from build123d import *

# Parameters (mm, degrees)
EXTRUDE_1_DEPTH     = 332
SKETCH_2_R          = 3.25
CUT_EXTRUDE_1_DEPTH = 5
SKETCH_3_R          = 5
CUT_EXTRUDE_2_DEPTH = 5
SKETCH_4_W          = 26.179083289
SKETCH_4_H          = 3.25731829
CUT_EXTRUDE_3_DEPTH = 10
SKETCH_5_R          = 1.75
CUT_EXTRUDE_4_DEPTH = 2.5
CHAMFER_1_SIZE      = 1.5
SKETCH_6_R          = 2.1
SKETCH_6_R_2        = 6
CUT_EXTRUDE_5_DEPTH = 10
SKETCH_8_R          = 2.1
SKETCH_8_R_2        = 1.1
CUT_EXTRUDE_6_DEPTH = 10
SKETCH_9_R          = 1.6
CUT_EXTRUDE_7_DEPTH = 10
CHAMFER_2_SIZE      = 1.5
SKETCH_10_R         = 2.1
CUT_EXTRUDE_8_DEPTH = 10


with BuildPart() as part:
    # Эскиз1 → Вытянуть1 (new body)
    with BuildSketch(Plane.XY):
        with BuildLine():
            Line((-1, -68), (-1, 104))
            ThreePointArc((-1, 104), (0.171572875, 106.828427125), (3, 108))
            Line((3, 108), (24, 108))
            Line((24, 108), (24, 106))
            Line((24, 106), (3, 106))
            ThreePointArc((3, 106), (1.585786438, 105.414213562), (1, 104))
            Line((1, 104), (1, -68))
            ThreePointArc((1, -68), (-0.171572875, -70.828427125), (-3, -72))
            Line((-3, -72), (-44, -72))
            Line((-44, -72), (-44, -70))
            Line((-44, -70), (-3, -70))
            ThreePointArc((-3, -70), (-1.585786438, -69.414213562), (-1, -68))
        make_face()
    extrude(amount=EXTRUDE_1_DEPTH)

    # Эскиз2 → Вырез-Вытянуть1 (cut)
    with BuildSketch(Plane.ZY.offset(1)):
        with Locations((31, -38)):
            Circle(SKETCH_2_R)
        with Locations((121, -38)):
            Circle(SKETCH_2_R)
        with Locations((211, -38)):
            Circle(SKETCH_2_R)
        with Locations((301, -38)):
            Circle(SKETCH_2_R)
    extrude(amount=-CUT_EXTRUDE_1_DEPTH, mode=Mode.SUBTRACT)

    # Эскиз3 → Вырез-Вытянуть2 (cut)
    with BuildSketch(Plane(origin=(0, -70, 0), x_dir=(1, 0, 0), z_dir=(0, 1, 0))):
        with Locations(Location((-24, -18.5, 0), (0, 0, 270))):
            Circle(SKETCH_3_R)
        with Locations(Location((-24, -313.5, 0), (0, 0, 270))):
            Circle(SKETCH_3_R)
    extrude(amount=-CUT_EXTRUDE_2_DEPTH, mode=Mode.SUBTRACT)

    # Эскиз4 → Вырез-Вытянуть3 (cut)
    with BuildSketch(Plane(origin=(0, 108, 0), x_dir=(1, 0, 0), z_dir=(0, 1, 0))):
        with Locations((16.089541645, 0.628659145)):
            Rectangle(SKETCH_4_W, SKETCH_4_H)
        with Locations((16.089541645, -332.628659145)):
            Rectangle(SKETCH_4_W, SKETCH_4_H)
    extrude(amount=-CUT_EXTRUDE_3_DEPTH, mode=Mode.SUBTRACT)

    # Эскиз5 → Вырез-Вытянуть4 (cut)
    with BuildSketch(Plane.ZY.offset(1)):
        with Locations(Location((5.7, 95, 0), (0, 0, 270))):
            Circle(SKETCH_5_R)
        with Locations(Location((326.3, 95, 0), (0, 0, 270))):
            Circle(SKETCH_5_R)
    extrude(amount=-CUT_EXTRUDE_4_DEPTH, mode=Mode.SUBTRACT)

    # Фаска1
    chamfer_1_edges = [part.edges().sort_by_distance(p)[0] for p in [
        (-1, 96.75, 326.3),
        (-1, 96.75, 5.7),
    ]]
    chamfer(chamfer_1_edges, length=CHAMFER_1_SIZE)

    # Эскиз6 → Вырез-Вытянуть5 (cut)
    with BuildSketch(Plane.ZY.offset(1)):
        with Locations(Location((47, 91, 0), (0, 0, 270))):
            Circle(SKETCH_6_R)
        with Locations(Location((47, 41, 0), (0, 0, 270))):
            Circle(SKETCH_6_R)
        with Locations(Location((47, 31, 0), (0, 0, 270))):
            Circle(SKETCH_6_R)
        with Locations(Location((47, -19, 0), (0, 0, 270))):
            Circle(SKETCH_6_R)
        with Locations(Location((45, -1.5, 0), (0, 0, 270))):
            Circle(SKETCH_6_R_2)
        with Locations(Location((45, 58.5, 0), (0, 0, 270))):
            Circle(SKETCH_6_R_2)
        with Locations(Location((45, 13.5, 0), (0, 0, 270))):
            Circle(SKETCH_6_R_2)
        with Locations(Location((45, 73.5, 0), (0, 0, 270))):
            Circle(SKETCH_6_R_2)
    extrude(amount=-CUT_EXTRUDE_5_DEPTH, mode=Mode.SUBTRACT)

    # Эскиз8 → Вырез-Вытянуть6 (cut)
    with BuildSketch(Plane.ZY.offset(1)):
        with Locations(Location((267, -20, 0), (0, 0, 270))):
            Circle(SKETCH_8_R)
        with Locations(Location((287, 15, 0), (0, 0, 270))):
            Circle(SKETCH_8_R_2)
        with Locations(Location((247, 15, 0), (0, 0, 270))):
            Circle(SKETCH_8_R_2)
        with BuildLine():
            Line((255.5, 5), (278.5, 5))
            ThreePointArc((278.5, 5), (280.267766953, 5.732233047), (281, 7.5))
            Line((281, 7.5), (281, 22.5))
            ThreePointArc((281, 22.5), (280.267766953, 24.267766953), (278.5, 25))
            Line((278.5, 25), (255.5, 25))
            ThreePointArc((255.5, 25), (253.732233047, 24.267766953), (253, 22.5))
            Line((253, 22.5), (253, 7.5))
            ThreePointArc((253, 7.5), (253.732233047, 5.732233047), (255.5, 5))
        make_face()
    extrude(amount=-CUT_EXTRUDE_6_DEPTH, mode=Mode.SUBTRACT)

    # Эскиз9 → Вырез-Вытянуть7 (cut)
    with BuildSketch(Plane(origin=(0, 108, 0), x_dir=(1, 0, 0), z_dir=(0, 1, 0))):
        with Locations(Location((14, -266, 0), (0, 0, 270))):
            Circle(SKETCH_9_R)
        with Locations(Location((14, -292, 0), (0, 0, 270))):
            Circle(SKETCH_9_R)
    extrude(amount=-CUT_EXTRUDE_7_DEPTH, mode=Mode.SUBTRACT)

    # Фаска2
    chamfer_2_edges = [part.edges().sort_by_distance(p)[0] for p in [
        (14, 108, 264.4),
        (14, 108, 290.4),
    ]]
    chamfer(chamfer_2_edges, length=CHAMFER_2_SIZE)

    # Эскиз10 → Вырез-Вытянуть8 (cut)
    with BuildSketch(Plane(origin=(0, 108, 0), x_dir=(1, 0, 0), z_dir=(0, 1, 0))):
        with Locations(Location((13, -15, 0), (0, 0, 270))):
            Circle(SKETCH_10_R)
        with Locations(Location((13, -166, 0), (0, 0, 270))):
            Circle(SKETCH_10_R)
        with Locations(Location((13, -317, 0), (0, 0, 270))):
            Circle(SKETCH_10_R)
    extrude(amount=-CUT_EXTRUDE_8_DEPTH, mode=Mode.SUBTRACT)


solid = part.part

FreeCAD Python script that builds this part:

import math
import FreeCAD as App
import Part
import Sketcher
from FreeCAD import Vector
Q = App.Units.Quantity


def edges_at(feature, points):
    """Names of the edges that pass closest to the given points."""
    edges = feature.Shape.Edges
    near = lambda p: min(range(len(edges)), key=lambda i: edges[i].distToShape(Part.Vertex(*p))[0])
    return sorted({f"Edge{near(p) + 1}" for p in points})

doc = App.newDocument("Part")
body = doc.addObject("PartDesign::Body", "Body")

# Sketch on XY plane
sketch1 = body.newObject("Sketcher::SketchObject", "Sketch")
sketch1.AttachmentSupport = (doc.getObject("XY_Plane"), [""])
sketch1.MapMode = "FlatFace"
sketch1.addGeometry([
    Part.LineSegment(Vector(-1, 104, 0), Vector(-1, -68, 0)),  # 0
    Part.ArcOfCircle(Part.Circle(Vector(-3, -68, 0), Vector(0, 0, 1), 2), math.radians(-90), math.radians(0)),  # 1
    Part.LineSegment(Vector(-3, -70, 0), Vector(-44, -70, 0)),  # 2
    Part.LineSegment(Vector(-44, -70, 0), Vector(-44, -72, 0)),  # 3
    Part.LineSegment(Vector(-44, -72, 0), Vector(-3, -72, 0)),  # 4
    Part.ArcOfCircle(Part.Circle(Vector(-3, -68, 0), Vector(0, 0, 1), 4), math.radians(-90), math.radians(0)),  # 5
    Part.LineSegment(Vector(1, -68, 0), Vector(1, 104, 0)),  # 6
    Part.ArcOfCircle(Part.Circle(Vector(3, 104, 0), Vector(0, 0, 1), 2), math.radians(90), math.radians(180)),  # 7
    Part.LineSegment(Vector(3, 106, 0), Vector(24, 106, 0)),  # 8
    Part.LineSegment(Vector(24, 106, 0), Vector(24, 108, 0)),  # 9
    Part.LineSegment(Vector(24, 108, 0), Vector(3, 108, 0)),  # 10
    Part.ArcOfCircle(Part.Circle(Vector(3, 104, 0), Vector(0, 0, 1), 4), math.radians(90), math.radians(180)),  # 11
], False)
sketch1.addConstraint([
    Sketcher.Constraint("Tangent", 0, 2, 1, 2),
    Sketcher.Constraint("Tangent", 1, 1, 2, 1),
    Sketcher.Constraint("Coincident", 2, 2, 3, 1),
    Sketcher.Constraint("Coincident", 3, 2, 4, 1),
    Sketcher.Constraint("Tangent", 4, 2, 5, 1),
    Sketcher.Constraint("Tangent", 5, 2, 6, 1),
    Sketcher.Constraint("Tangent", 6, 2, 7, 2),
    Sketcher.Constraint("Tangent", 7, 1, 8, 1),
    Sketcher.Constraint("Coincident", 8, 2, 9, 1),
    Sketcher.Constraint("Coincident", 9, 2, 10, 1),
    Sketcher.Constraint("Tangent", 10, 2, 11, 1),
    Sketcher.Constraint("Tangent", 11, 2, 0, 1),
    Sketcher.Constraint("Vertical", 0),
    Sketcher.Constraint("Horizontal", 2),
    Sketcher.Constraint("Vertical", 3),
    Sketcher.Constraint("Horizontal", 4),
    Sketcher.Constraint("Vertical", 6),
    Sketcher.Constraint("Horizontal", 8),
    Sketcher.Constraint("Vertical", 9),
    Sketcher.Constraint("Horizontal", 10),
    Sketcher.Constraint("Coincident", 5, 3, 1, 3),
    Sketcher.Constraint("Coincident", 11, 3, 7, 3),
    Sketcher.Constraint("Equal", 1, 7),
    Sketcher.Constraint("Radius", 1, Q("2 mm")),
    Sketcher.Constraint("Radius", 5, Q("4 mm")),
    Sketcher.Constraint("DistanceX", 2, 2, 2, 1, Q("41 mm")),
    Sketcher.Constraint("DistanceX", 8, 1, 8, 2, Q("21 mm")),
    Sketcher.Constraint("DistanceY", 0, 2, 0, 1, Q("172 mm")),
    Sketcher.Constraint("DistanceX", 1, 3, -1, 1, Q("3 mm")),
    Sketcher.Constraint("DistanceY", 1, 3, -1, 1, Q("68 mm")),
])
pad1 = body.newObject("PartDesign::Pad", "Pad")
pad1.Profile = sketch1
pad1.Length = 332

# Sketch on YZ plane
sketch2 = body.newObject("Sketcher::SketchObject", "Sketch001")
sketch2.AttachmentSupport = (doc.getObject("YZ_Plane"), [""])
sketch2.MapMode = "FlatFace"
sketch2.AttachmentOffset = App.Placement(Vector(0, 0, -1), App.Rotation())
sketch2.addGeometry([
    Part.Circle(Vector(-38, 31, 0), Vector(0, 0, 1), 3.2),
    Part.Circle(Vector(-38, 121, 0), Vector(0, 0, 1), 3.2),
    Part.Circle(Vector(-38, 211, 0), Vector(0, 0, 1), 3.2),
    Part.Circle(Vector(-38, 301, 0), Vector(0, 0, 1), 3.2),
], False)
sketch2.addConstraint([
    Sketcher.Constraint("Equal", 0, 1),
    Sketcher.Constraint("Equal", 1, 2),
    Sketcher.Constraint("Equal", 2, 3),
    Sketcher.Constraint("Vertical", 0, 3, 1, 3),
    Sketcher.Constraint("Vertical", 1, 3, 2, 3),
    Sketcher.Constraint("Vertical", 2, 3, 3, 3),
    Sketcher.Constraint("Diameter", 0, Q("6.5 mm")),
    Sketcher.Constraint("DistanceX", 0, 3, -1, 1, Q("38 mm")),
    Sketcher.Constraint("DistanceY", -1, 1, 0, 3, Q("31 mm")),
    Sketcher.Constraint("DistanceY", -1, 1, 1, 3, Q("121 mm")),
    Sketcher.Constraint("DistanceY", -1, 1, 2, 3, Q("211 mm")),
    Sketcher.Constraint("DistanceY", -1, 1, 3, 3, Q("301 mm")),
])
pocket1 = body.newObject("PartDesign::Pocket", "Pocket")
pocket1.Profile = sketch2
pocket1.Length = 5
pocket1.Reversed = True

# Sketch on XZ plane
sketch3 = body.newObject("Sketcher::SketchObject", "Sketch002")
sketch3.AttachmentSupport = (doc.getObject("XZ_Plane"), [""])
sketch3.MapMode = "FlatFace"
sketch3.AttachmentOffset = App.Placement(Vector(0, 0, 70), App.Rotation())
sketch3.addGeometry([
    Part.Circle(Vector(-24, 18, 0), Vector(0, 0, 1), 5),
    Part.Circle(Vector(-24, 314, 0), Vector(0, 0, 1), 5),
], False)
sketch3.addConstraint([
    Sketcher.Constraint("Equal", 0, 1),
    Sketcher.Constraint("Vertical", 0, 3, 1, 3),
    Sketcher.Constraint("Diameter", 0, Q("10 mm")),
    Sketcher.Constraint("DistanceX", 0, 3, -1, 1, Q("24 mm")),
    Sketcher.Constraint("DistanceY", 0, 3, 1, 3, Q("295 mm")),
    Sketcher.Constraint("DistanceY", -1, 1, 0, 3, Q("18.5 mm")),
])
pocket2 = body.newObject("PartDesign::Pocket", "Pocket001")
pocket2.Profile = sketch3
pocket2.Length = 5
pocket2.Reversed = True

# Sketch on XZ plane
sketch4 = body.newObject("Sketcher::SketchObject", "Sketch003")
sketch4.AttachmentSupport = (doc.getObject("XZ_Plane"), [""])
sketch4.MapMode = "FlatFace"
sketch4.AttachmentOffset = App.Placement(Vector(0, 0, -108), App.Rotation())
sketch4.addGeometry([
    Part.LineSegment(Vector(3, -2.3, 0), Vector(3, 1, 0)),  # 0
    Part.LineSegment(Vector(3, 1, 0), Vector(29.2, 1, 0)),  # 1
    Part.LineSegment(Vector(29.2, 1, 0), Vector(29.2, -2.3, 0)),  # 2
    Part.LineSegment(Vector(29.2, -2.3, 0), Vector(3, -2.3, 0)),  # 3
    Part.LineSegment(Vector(3, 331, 0), Vector(3, 334.3, 0)),  # 4
    Part.LineSegment(Vector(3, 334.3, 0), Vector(29.2, 334.3, 0)),  # 5
    Part.LineSegment(Vector(29.2, 334.3, 0), Vector(29.2, 331, 0)),  # 6
    Part.LineSegment(Vector(29.2, 331, 0), Vector(3, 331, 0)),  # 7
], False)
sketch4.addConstraint([
    Sketcher.Constraint("Coincident", 0, 2, 1, 1),
    Sketcher.Constraint("Coincident", 1, 2, 2, 1),
    Sketcher.Constraint("Coincident", 2, 2, 3, 1),
    Sketcher.Constraint("Coincident", 3, 2, 0, 1),
    Sketcher.Constraint("Coincident", 4, 2, 5, 1),
    Sketcher.Constraint("Coincident", 5, 2, 6, 1),
    Sketcher.Constraint("Coincident", 6, 2, 7, 1),
    Sketcher.Constraint("Coincident", 7, 2, 4, 1),
    Sketcher.Constraint("Vertical", 0),
    Sketcher.Constraint("Horizontal", 1),
    Sketcher.Constraint("Vertical", 2),
    Sketcher.Constraint("Horizontal", 3),
    Sketcher.Constraint("Vertical", 4),
    Sketcher.Constraint("Horizontal", 5),
    Sketcher.Constraint("Vertical", 6),
    Sketcher.Constraint("Horizontal", 7),
    Sketcher.Constraint("Vertical", 3, 2, 4, 2),
    Sketcher.Constraint("Vertical", 2, 2, 5, 2),
    Sketcher.Constraint("Equal", 2, 4),
    Sketcher.Constraint("DistanceX", -1, 1, 0, 2, Q("3 mm")),
    Sketcher.Constraint("DistanceY", -1, 1, 0, 2, Q("1 mm")),
    Sketcher.Constraint("DistanceY", -1, 1, 6, 2, Q("331 mm")),
    Sketcher.Constraint("DistanceY", 0, 1, 0, 2, Q("3.257318 mm")),
    Sketcher.Constraint("DistanceX", 1, 1, 1, 2, Q("26.179083 mm")),
])
pocket3 = body.newObject("PartDesign::Pocket", "Pocket002")
pocket3.Profile = sketch4
pocket3.Length = 10
pocket3.Reversed = True

# Sketch on YZ plane
sketch5 = body.newObject("Sketcher::SketchObject", "Sketch004")
sketch5.AttachmentSupport = (doc.getObject("YZ_Plane"), [""])
sketch5.MapMode = "FlatFace"
sketch5.AttachmentOffset = App.Placement(Vector(0, 0, -1), App.Rotation())
sketch5.addGeometry([
    Part.Circle(Vector(95, 5.7, 0), Vector(0, 0, 1), 1.8),
    Part.Circle(Vector(95, 326.3, 0), Vector(0, 0, 1), 1.8),
], False)
sketch5.addConstraint([
    Sketcher.Constraint("Equal", 0, 1),
    Sketcher.Constraint("Vertical", 0, 3, 1, 3),
    Sketcher.Constraint("Diameter", 0, Q("3.5 mm")),
    Sketcher.Constraint("DistanceX", -1, 1, 0, 3, Q("95 mm")),
    Sketcher.Constraint("DistanceY", -1, 1, 0, 3, Q("5.7 mm")),
    Sketcher.Constraint("DistanceY", -1, 1, 1, 3, Q("326.3 mm")),
])
pocket4 = body.newObject("PartDesign::Pocket", "Pocket003")
pocket4.Profile = sketch5
pocket4.Length = 2.5
pocket4.Reversed = True
doc.recompute()

chamfer = body.newObject("PartDesign::Chamfer", "Chamfer")
chamfer.Base = (pocket4, edges_at(pocket4, [(-1, 96.75, 326.3), (-1, 96.75, 5.7)]))
chamfer.Size = 1.5

# Sketch on YZ plane
sketch6 = body.newObject("Sketcher::SketchObject", "Sketch005")
sketch6.AttachmentSupport = (doc.getObject("YZ_Plane"), [""])
sketch6.MapMode = "FlatFace"
sketch6.AttachmentOffset = App.Placement(Vector(0, 0, -1), App.Rotation())
sketch6.addGeometry([
    Part.Circle(Vector(91, 47, 0), Vector(0, 0, 1), 2.1),  # 0
    Part.Circle(Vector(41, 47, 0), Vector(0, 0, 1), 2.1),  # 1
    Part.Circle(Vector(31, 47, 0), Vector(0, 0, 1), 2.1),  # 2
    Part.Circle(Vector(-19, 47, 0), Vector(0, 0, 1), 2.1),  # 3
    Part.Circle(Vector(-1.5, 45, 0), Vector(0, 0, 1), 6),  # 4
    Part.Circle(Vector(58.5, 45, 0), Vector(0, 0, 1), 6),  # 5
    Part.Circle(Vector(13.5, 45, 0), Vector(0, 0, 1), 6),  # 6
    Part.Circle(Vector(73.5, 45, 0), Vector(0, 0, 1), 6),  # 7
], False)
sketch6.addConstraint([
    Sketcher.Constraint("Equal", 0, 1),
    Sketcher.Constraint("Equal", 1, 2),
    Sketcher.Constraint("Equal", 2, 3),
    Sketcher.Constraint("Equal", 4, 5),
    Sketcher.Constraint("Equal", 5, 6),
    Sketcher.Constraint("Equal", 6, 7),
    Sketcher.Constraint("Horizontal", 0, 3, 1, 3),
    Sketcher.Constraint("Horizontal", 1, 3, 2, 3),
    Sketcher.Constraint("Horizontal", 2, 3, 3, 3),
    Sketcher.Constraint("Horizontal", 4, 3, 5, 3),
    Sketcher.Constraint("Horizontal", 5, 3, 6, 3),
    Sketcher.Constraint("Horizontal", 6, 3, 7, 3),
    Sketcher.Constraint("Diameter", 4, Q("12 mm")),
    Sketcher.Constraint("Diameter", 0, Q("4.2 mm")),
    Sketcher.Constraint("DistanceX", -1, 1, 0, 3, Q("91 mm")),
    Sketcher.Constraint("DistanceY", -1, 1, 0, 3, Q("47 mm")),
    Sketcher.Constraint("DistanceX", -1, 1, 1, 3, Q("41 mm")),
    Sketcher.Constraint("DistanceX", -1, 1, 2, 3, Q("31 mm")),
    Sketcher.Constraint("DistanceX", 3, 3, -1, 1, Q("19 mm")),
    Sketcher.Constraint("DistanceY", -1, 1, 4, 3, Q("45 mm")),
    Sketcher.Constraint("DistanceX", 4, 3, 5, 3, Q("60 mm")),
    Sketcher.Constraint("DistanceX", 4, 3, 6, 3, Q("15 mm")),
    Sketcher.Constraint("DistanceX", 5, 3, 7, 3, Q("15 mm")),
    Sketcher.Constraint("DistanceX", 4, 3, -1, 1, Q("1.5 mm")),
])
pocket5 = body.newObject("PartDesign::Pocket", "Pocket004")
pocket5.Profile = sketch6
pocket5.Length = 10
pocket5.Reversed = True

# Sketch on YZ plane
sketch7 = body.newObject("Sketcher::SketchObject", "Sketch006")
sketch7.AttachmentSupport = (doc.getObject("YZ_Plane"), [""])
sketch7.MapMode = "FlatFace"
sketch7.AttachmentOffset = App.Placement(Vector(0, 0, -1), App.Rotation())
sketch7.addGeometry([
    Part.Circle(Vector(-20, 267, 0), Vector(0, 0, 1), 2.1),  # 0
    Part.Circle(Vector(15, 287, 0), Vector(0, 0, 1), 1.1),  # 1
    Part.Circle(Vector(15, 247, 0), Vector(0, 0, 1), 1.1),  # 2
    Part.LineSegment(Vector(5, 255.5, 0), Vector(5, 278.5, 0)),  # 3
    Part.ArcOfCircle(Part.Circle(Vector(7.5, 278.5, 0), Vector(0, 0, 1), 2.5), math.radians(90), math.radians(180)),  # 4
    Part.LineSegment(Vector(7.5, 281, 0), Vector(22.5, 281, 0)),  # 5
    Part.ArcOfCircle(Part.Circle(Vector(22.5, 278.5, 0), Vector(0, 0, 1), 2.5), math.radians(0), math.radians(90)),  # 6
    Part.LineSegment(Vector(25, 278.5, 0), Vector(25, 255.5, 0)),  # 7
    Part.ArcOfCircle(Part.Circle(Vector(22.5, 255.5, 0), Vector(0, 0, 1), 2.5), math.radians(-90), math.radians(0)),  # 8
    Part.LineSegment(Vector(22.5, 253, 0), Vector(7.5, 253, 0)),  # 9
    Part.ArcOfCircle(Part.Circle(Vector(7.5, 255.5, 0), Vector(0, 0, 1), 2.5), math.radians(180), math.radians(270)),  # 10
], False)
sketch7.addConstraint([
    Sketcher.Constraint("Tangent", 3, 2, 4, 2),
    Sketcher.Constraint("Tangent", 4, 1, 5, 1),
    Sketcher.Constraint("Tangent", 5, 2, 6, 2),
    Sketcher.Constraint("Tangent", 6, 1, 7, 1),
    Sketcher.Constraint("Tangent", 7, 2, 8, 2),
    Sketcher.Constraint("Tangent", 8, 1, 9, 1),
    Sketcher.Constraint("Tangent", 9, 2, 10, 2),
    Sketcher.Constraint("Tangent", 10, 1, 3, 1),
    Sketcher.Constraint("Vertical", 3),
    Sketcher.Constraint("Horizontal", 5),
    Sketcher.Constraint("Vertical", 7),
    Sketcher.Constraint("Horizontal", 9),
    Sketcher.Constraint("Equal", 1, 2),
    Sketcher.Constraint("Equal", 4, 6),
    Sketcher.Constraint("Equal", 6, 8),
    Sketcher.Constraint("Equal", 8, 10),
    Sketcher.Constraint("Vertical", 1, 3, 2, 3),
    Sketcher.Constraint("Diameter", 0, Q("4.2 mm")),
    Sketcher.Constraint("Diameter", 1, Q("2.2 mm")),
    Sketcher.Constraint("Radius", 4, Q("2.5 mm")),
    Sketcher.Constraint("DistanceX", 5, 1, 5, 2, Q("15 mm")),
    Sketcher.Constraint("DistanceY", 3, 1, 3, 2, Q("23 mm")),
    Sketcher.Constraint("DistanceX", 0, 3, -1, 1, Q("20 mm")),
    Sketcher.Constraint("DistanceY", -1, 1, 0, 3, Q("267 mm")),
    Sketcher.Constraint("DistanceX", -1, 1, 1, 3, Q("15 mm")),
    Sketcher.Constraint("DistanceY", -1, 1, 1, 3, Q("287 mm")),
    Sketcher.Constraint("DistanceY", -1, 1, 2, 3, Q("247 mm")),
    Sketcher.Constraint("DistanceX", -1, 1, 3, 2, Q("5 mm")),
    Sketcher.Constraint("DistanceY", -1, 1, 4, 1, Q("281 mm")),
])
pocket6 = body.newObject("PartDesign::Pocket", "Pocket005")
pocket6.Profile = sketch7
pocket6.Length = 10
pocket6.Reversed = True

# Sketch on XZ plane
sketch8 = body.newObject("Sketcher::SketchObject", "Sketch007")
sketch8.AttachmentSupport = (doc.getObject("XZ_Plane"), [""])
sketch8.MapMode = "FlatFace"
sketch8.AttachmentOffset = App.Placement(Vector(0, 0, -108), App.Rotation())
sketch8.addGeometry([
    Part.Circle(Vector(14, 266, 0), Vector(0, 0, 1), 1.6),
    Part.Circle(Vector(14, 292, 0), Vector(0, 0, 1), 1.6),
], False)
sketch8.addConstraint([
    Sketcher.Constraint("Equal", 0, 1),
    Sketcher.Constraint("Vertical", 0, 3, 1, 3),
    Sketcher.Constraint("Diameter", 0, Q("3.2 mm")),
    Sketcher.Constraint("DistanceX", -1, 1, 0, 3, Q("14 mm")),
    Sketcher.Constraint("DistanceY", -1, 1, 0, 3, Q("266 mm")),
    Sketcher.Constraint("DistanceY", -1, 1, 1, 3, Q("292 mm")),
])
pocket7 = body.newObject("PartDesign::Pocket", "Pocket006")
pocket7.Profile = sketch8
pocket7.Length = 10
pocket7.Reversed = True
doc.recompute()

chamfer2 = body.newObject("PartDesign::Chamfer", "Chamfer001")
chamfer2.Base = (pocket7, edges_at(pocket7, [(14, 108, 264.4), (14, 108, 290.4)]))
chamfer2.Size = 1.5

# Sketch on XZ plane
sketch9 = body.newObject("Sketcher::SketchObject", "Sketch008")
sketch9.AttachmentSupport = (doc.getObject("XZ_Plane"), [""])
sketch9.MapMode = "FlatFace"
sketch9.AttachmentOffset = App.Placement(Vector(0, 0, -108), App.Rotation())
sketch9.addGeometry([
    Part.Circle(Vector(13, 15, 0), Vector(0, 0, 1), 2.1),
    Part.Circle(Vector(13, 166, 0), Vector(0, 0, 1), 2.1),
    Part.Circle(Vector(13, 317, 0), Vector(0, 0, 1), 2.1),
], False)
sketch9.addConstraint([
    Sketcher.Constraint("Equal", 0, 1),
    Sketcher.Constraint("Equal", 1, 2),
    Sketcher.Constraint("Vertical", 0, 3, 1, 3),
    Sketcher.Constraint("Vertical", 1, 3, 2, 3),
    Sketcher.Constraint("Diameter", 0, Q("4.2 mm")),
    Sketcher.Constraint("DistanceX", -1, 1, 0, 3, Q("13 mm")),
    Sketcher.Constraint("DistanceY", -1, 1, 0, 3, Q("15 mm")),
    Sketcher.Constraint("DistanceY", -1, 1, 1, 3, Q("166 mm")),
    Sketcher.Constraint("DistanceY", -1, 1, 2, 3, Q("317 mm")),
])
pocket8 = body.newObject("PartDesign::Pocket", "Pocket007")
pocket8.Profile = sketch9
pocket8.Length = 10
pocket8.Reversed = True

doc.recompute()
